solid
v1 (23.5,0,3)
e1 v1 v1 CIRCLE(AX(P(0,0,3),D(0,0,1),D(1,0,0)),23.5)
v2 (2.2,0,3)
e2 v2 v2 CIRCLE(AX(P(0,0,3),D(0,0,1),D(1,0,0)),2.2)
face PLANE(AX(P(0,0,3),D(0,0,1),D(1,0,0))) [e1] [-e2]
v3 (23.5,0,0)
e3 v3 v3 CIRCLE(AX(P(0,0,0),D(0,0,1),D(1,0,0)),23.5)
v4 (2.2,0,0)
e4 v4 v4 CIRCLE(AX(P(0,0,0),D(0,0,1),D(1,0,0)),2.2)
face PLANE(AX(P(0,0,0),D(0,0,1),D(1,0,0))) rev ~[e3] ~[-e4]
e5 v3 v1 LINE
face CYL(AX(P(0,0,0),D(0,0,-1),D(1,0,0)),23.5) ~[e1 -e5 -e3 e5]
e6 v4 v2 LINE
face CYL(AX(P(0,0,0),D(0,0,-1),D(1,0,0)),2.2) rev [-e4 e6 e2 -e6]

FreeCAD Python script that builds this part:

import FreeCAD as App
import Part
import Sketcher

doc = App.newDocument("Part")
params = doc.addObject("Spreadsheet::Sheet", "Params")
for row, (alias, value) in enumerate([
    ("sketch1_diameter", "47 mm"),
    ("sketch1_diameter2", "4.4 mm"),
    ("pad1_length", "3 mm"),
], start=1):
    params.set(f"A{row}", alias)
    params.set(f"B{row}", "=" + value)
    params.setAlias(f"B{row}", alias)

body = doc.addObject("PartDesign::Body", "Body")

# Sketch on XY plane
sketch1 = body.newObject("Sketcher::SketchObject", "Sketch")
sketch1.AttachmentSupport = (doc.getObject("XY_Plane"), [""])
sketch1.MapMode = "FlatFace"
sketch1.addGeometry(Part.Circle(App.Vector(0, 0, 0), App.Vector(0, 0, 1), 23.5), False)
sketch1.addGeometry(Part.Circle(App.Vector(0, 0, 0), App.Vector(0, 0, 1), 2.2), False)
sketch1.addConstraint(Sketcher.Constraint("Coincident", 0, 3, -1, 1))
sketch1.addConstraint(Sketcher.Constraint("Coincident", 1, 3, -1, 1))
sketch1.addConstraint(Sketcher.Constraint("Diameter", 0, 47.0))
sketch1.addConstraint(Sketcher.Constraint("Diameter", 1, 4.4))
sketch1.setExpression("Constraints[2]", "Params.sketch1_diameter")
sketch1.setExpression("Constraints[3]", "Params.sketch1_diameter2")
pad1 = body.newObject("PartDesign::Pad", "Pad")
pad1.Profile = sketch1
pad1.setExpression("Length", "Params.pad1_length")

doc.recompute()
